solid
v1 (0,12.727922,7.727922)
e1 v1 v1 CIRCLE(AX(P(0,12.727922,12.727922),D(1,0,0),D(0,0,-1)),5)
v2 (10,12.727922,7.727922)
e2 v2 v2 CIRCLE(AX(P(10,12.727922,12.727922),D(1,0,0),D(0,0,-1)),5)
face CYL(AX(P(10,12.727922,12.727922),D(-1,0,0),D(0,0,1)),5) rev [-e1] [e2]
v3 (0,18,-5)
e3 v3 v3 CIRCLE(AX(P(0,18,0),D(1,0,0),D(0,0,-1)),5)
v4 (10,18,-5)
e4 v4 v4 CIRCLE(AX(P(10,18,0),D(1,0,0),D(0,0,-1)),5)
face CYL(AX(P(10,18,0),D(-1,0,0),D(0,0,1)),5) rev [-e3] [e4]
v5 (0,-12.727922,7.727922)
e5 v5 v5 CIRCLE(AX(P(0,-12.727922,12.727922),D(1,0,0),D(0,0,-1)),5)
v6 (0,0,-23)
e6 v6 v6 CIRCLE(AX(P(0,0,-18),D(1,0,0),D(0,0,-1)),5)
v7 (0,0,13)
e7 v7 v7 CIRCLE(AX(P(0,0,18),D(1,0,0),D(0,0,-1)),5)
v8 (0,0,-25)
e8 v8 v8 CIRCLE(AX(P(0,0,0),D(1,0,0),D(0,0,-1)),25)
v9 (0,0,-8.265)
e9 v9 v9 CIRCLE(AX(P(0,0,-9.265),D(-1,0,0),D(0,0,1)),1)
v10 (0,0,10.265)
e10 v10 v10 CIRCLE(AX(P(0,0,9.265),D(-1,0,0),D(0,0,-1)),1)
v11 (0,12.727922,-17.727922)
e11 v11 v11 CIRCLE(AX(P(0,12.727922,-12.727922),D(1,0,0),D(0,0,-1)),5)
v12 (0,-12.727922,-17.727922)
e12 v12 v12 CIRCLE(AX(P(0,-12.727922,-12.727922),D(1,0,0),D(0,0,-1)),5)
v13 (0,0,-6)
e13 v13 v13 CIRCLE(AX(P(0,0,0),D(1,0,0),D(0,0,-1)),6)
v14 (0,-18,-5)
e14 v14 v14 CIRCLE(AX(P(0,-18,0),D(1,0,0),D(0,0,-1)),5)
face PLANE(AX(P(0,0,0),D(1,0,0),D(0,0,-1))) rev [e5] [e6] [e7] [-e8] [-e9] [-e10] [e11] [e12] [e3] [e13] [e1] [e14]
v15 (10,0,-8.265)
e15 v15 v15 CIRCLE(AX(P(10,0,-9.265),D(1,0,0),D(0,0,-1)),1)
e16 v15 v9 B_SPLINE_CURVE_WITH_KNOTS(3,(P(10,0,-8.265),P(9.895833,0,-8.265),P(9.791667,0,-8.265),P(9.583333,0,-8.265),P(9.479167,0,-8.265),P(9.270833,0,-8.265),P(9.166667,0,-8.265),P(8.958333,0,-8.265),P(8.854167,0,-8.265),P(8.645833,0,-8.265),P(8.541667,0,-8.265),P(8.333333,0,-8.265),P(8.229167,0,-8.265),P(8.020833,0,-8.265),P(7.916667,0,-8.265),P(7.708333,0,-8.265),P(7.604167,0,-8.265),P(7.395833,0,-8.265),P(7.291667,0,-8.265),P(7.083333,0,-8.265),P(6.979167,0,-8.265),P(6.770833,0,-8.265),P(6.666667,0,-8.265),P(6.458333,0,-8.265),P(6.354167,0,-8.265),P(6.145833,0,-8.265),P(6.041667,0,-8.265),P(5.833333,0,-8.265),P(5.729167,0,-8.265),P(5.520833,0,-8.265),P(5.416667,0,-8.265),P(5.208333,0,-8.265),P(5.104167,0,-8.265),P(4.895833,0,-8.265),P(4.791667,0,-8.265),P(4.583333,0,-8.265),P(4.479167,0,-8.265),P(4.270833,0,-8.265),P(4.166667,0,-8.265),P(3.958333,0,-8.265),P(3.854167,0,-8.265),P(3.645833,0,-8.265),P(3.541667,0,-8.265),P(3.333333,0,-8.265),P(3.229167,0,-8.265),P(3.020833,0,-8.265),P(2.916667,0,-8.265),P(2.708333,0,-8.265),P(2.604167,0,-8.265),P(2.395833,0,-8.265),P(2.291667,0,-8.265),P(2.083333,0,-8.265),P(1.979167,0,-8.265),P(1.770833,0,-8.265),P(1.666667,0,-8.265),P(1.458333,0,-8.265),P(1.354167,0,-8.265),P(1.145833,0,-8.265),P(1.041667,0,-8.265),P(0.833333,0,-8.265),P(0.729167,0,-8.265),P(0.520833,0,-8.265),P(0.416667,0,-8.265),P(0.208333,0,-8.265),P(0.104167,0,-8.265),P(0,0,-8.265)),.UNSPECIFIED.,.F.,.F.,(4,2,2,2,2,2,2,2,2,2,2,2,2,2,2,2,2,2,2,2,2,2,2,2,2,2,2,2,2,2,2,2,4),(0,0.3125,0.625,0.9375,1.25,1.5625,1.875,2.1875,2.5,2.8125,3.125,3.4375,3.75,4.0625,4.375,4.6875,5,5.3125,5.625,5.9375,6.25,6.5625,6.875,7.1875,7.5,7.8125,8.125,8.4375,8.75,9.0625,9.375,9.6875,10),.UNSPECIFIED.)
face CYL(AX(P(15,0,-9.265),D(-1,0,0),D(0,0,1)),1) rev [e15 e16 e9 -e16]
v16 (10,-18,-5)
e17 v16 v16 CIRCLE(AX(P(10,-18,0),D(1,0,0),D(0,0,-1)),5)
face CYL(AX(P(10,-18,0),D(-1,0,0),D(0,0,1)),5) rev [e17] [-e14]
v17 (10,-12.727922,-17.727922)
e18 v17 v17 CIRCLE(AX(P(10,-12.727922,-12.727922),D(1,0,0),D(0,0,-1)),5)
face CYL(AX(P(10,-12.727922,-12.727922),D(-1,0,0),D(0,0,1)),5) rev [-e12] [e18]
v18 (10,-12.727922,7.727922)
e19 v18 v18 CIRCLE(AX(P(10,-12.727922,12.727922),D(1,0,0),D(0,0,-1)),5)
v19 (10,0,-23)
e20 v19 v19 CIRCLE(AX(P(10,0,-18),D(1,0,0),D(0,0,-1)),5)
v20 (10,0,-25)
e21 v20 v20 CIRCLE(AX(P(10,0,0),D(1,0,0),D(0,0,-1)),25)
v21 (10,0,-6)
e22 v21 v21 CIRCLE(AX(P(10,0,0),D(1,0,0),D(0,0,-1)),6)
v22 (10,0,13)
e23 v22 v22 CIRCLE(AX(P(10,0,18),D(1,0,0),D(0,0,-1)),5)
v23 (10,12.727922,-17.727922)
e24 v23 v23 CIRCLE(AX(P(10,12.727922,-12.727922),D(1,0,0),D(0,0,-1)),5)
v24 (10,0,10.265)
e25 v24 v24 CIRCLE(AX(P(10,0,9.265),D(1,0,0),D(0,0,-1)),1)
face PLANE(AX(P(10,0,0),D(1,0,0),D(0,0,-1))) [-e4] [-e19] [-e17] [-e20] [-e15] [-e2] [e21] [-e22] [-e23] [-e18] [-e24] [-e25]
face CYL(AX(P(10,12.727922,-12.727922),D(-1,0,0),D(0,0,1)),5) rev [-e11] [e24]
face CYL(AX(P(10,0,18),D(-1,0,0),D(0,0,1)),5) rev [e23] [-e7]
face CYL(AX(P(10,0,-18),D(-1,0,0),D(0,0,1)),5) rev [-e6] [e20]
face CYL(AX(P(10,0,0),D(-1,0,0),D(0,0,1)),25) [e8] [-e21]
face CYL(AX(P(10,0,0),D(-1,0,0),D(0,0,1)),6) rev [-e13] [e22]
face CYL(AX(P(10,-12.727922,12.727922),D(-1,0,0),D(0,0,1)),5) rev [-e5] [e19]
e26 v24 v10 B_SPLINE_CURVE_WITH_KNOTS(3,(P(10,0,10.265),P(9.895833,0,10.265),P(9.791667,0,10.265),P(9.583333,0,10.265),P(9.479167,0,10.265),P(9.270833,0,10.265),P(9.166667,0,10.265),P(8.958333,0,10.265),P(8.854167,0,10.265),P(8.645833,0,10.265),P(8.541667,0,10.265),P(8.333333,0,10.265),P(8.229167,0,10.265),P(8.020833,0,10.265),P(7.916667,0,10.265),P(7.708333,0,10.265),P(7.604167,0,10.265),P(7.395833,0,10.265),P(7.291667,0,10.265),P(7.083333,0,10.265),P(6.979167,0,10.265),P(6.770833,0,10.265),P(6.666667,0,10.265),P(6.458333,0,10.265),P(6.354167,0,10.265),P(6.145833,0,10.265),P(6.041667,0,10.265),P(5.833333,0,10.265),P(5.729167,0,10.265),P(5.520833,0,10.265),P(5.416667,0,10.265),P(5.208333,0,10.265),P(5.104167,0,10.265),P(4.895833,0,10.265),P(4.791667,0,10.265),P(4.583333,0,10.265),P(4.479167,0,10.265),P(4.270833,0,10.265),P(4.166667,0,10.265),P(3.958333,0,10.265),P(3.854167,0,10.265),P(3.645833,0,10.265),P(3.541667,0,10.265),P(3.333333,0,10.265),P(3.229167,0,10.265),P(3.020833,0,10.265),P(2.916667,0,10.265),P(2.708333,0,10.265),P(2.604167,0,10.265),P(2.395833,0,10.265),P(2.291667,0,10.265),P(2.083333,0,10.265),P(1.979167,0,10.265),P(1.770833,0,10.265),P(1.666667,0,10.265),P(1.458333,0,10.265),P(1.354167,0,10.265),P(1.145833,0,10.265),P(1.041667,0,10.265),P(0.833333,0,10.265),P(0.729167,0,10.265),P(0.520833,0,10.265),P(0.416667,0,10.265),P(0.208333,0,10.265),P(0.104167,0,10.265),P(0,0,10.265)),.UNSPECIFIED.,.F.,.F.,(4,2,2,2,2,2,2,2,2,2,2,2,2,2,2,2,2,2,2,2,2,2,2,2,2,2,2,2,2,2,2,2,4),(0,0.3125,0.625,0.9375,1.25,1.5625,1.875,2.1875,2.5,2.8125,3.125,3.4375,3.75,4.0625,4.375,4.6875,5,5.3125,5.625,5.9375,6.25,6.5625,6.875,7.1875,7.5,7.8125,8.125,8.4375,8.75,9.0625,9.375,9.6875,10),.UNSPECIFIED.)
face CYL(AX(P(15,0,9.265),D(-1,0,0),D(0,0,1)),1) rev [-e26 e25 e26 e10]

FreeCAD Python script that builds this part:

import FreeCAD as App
import Part
import Sketcher
from FreeCAD import Vector

doc = App.newDocument("Part")
body = doc.addObject("PartDesign::Body", "Body")

sketch1 = body.newObject("Sketcher::SketchObject", "Sketch")
sketch1.AttachmentSupport = (doc.getObject("YZ_Plane"), [""])
sketch1.MapMode = "FlatFace"
sketch1.addGeometry([
    Part.Circle(Vector(0, 0, 0), Vector(0, 0, 1), 25),
    Part.Circle(Vector(-13, 13, 0), Vector(0, 0, 1), 5),
    Part.Circle(Vector(-18, 0, 0), Vector(0, 0, 1), 5),
    Part.Circle(Vector(-13, -13, 0), Vector(0, 0, 1), 5),
    Part.Circle(Vector(0, 18, 0), Vector(0, 0, 1), 5),
    Part.Circle(Vector(13, 13, 0), Vector(0, 0, 1), 5),
    Part.Circle(Vector(0, 0, 0), Vector(0, 0, 1), 6),
    Part.Circle(Vector(0, -18, 0), Vector(0, 0, 1), 5),
    Part.Circle(Vector(18, 0, 0), Vector(0, 0, 1), 5),
    Part.Circle(Vector(13, -13, 0), Vector(0, 0, 1), 5),
], False)
sketch1.addConstraint([
    Sketcher.Constraint("Coincident", 0, 3, -1, 1),
    Sketcher.Constraint("Coincident", 6, 3, -1, 1),
    Sketcher.Constraint("Equal", 1, 2),
    Sketcher.Constraint("Equal", 2, 3),
    Sketcher.Constraint("Equal", 3, 4),
    Sketcher.Constraint("Equal", 4, 5),
    Sketcher.Constraint("Equal", 5, 7),
    Sketcher.Constraint("Equal", 7, 8),
    Sketcher.Constraint("Equal", 8, 9),
    Sketcher.Constraint("Symmetric", 3, 3, 5, 3, -1, 1),
    Sketcher.Constraint("Symmetric", 4, 3, 7, 3, -1, 1),
    Sketcher.Constraint("Symmetric", 2, 3, 8, 3, -1, 1),
    Sketcher.Constraint("Symmetric", 1, 3, 9, 3, -1, 1),
    Sketcher.Constraint("Symmetric", 1, 3, 5, 3, -2),
    Sketcher.Constraint("PointOnObject", 2, 3, -1),
    Sketcher.Constraint("PointOnObject", 4, 3, -2),
    Sketcher.Constraint("Diameter", 0, 50.0),
    Sketcher.Constraint("Diameter", 1, 10.0),
    Sketcher.Constraint("Diameter", 6, 12.0),
    Sketcher.Constraint("DistanceX", 2, 3, -1, 1, 18.0),
    Sketcher.Constraint("DistanceY", -1, 1, 4, 3, 18.0),
    Sketcher.Constraint("DistanceX", 1, 3, -1, 1, 12.727922),
    Sketcher.Constraint("DistanceY", -1, 1, 1, 3, 12.727922),
])
pad1 = body.newObject("PartDesign::Pad", "Pad")
pad1.Profile = sketch1
pad1.Length = 10

sketch2 = body.newObject("Sketcher::SketchObject", "Sketch001")
sketch2.AttachmentSupport = (doc.getObject("YZ_Plane"), [""])
sketch2.MapMode = "FlatFace"
sketch2.addGeometry([
    Part.Circle(Vector(0, -9.3, 0), Vector(0, 0, 1), 1),
    Part.Circle(Vector(0, 9.3, 0), Vector(0, 0, 1), 1),
], False)
sketch2.addConstraint([
    Sketcher.Constraint("Equal", 0, 1),
    Sketcher.Constraint("Symmetric", 0, 3, 1, 3, -1, 1),
    Sketcher.Constraint("PointOnObject", 0, 3, -2),
    Sketcher.Constraint("Diameter", 0, 2.0),
    Sketcher.Constraint("DistanceY", 0, 3, 1, 3, 18.53),
])
pocket1 = body.newObject("PartDesign::Pocket", "Pocket")
pocket1.Profile = sketch2
pocket1.Length = 15
pocket1.Reversed = True

doc.recompute()
